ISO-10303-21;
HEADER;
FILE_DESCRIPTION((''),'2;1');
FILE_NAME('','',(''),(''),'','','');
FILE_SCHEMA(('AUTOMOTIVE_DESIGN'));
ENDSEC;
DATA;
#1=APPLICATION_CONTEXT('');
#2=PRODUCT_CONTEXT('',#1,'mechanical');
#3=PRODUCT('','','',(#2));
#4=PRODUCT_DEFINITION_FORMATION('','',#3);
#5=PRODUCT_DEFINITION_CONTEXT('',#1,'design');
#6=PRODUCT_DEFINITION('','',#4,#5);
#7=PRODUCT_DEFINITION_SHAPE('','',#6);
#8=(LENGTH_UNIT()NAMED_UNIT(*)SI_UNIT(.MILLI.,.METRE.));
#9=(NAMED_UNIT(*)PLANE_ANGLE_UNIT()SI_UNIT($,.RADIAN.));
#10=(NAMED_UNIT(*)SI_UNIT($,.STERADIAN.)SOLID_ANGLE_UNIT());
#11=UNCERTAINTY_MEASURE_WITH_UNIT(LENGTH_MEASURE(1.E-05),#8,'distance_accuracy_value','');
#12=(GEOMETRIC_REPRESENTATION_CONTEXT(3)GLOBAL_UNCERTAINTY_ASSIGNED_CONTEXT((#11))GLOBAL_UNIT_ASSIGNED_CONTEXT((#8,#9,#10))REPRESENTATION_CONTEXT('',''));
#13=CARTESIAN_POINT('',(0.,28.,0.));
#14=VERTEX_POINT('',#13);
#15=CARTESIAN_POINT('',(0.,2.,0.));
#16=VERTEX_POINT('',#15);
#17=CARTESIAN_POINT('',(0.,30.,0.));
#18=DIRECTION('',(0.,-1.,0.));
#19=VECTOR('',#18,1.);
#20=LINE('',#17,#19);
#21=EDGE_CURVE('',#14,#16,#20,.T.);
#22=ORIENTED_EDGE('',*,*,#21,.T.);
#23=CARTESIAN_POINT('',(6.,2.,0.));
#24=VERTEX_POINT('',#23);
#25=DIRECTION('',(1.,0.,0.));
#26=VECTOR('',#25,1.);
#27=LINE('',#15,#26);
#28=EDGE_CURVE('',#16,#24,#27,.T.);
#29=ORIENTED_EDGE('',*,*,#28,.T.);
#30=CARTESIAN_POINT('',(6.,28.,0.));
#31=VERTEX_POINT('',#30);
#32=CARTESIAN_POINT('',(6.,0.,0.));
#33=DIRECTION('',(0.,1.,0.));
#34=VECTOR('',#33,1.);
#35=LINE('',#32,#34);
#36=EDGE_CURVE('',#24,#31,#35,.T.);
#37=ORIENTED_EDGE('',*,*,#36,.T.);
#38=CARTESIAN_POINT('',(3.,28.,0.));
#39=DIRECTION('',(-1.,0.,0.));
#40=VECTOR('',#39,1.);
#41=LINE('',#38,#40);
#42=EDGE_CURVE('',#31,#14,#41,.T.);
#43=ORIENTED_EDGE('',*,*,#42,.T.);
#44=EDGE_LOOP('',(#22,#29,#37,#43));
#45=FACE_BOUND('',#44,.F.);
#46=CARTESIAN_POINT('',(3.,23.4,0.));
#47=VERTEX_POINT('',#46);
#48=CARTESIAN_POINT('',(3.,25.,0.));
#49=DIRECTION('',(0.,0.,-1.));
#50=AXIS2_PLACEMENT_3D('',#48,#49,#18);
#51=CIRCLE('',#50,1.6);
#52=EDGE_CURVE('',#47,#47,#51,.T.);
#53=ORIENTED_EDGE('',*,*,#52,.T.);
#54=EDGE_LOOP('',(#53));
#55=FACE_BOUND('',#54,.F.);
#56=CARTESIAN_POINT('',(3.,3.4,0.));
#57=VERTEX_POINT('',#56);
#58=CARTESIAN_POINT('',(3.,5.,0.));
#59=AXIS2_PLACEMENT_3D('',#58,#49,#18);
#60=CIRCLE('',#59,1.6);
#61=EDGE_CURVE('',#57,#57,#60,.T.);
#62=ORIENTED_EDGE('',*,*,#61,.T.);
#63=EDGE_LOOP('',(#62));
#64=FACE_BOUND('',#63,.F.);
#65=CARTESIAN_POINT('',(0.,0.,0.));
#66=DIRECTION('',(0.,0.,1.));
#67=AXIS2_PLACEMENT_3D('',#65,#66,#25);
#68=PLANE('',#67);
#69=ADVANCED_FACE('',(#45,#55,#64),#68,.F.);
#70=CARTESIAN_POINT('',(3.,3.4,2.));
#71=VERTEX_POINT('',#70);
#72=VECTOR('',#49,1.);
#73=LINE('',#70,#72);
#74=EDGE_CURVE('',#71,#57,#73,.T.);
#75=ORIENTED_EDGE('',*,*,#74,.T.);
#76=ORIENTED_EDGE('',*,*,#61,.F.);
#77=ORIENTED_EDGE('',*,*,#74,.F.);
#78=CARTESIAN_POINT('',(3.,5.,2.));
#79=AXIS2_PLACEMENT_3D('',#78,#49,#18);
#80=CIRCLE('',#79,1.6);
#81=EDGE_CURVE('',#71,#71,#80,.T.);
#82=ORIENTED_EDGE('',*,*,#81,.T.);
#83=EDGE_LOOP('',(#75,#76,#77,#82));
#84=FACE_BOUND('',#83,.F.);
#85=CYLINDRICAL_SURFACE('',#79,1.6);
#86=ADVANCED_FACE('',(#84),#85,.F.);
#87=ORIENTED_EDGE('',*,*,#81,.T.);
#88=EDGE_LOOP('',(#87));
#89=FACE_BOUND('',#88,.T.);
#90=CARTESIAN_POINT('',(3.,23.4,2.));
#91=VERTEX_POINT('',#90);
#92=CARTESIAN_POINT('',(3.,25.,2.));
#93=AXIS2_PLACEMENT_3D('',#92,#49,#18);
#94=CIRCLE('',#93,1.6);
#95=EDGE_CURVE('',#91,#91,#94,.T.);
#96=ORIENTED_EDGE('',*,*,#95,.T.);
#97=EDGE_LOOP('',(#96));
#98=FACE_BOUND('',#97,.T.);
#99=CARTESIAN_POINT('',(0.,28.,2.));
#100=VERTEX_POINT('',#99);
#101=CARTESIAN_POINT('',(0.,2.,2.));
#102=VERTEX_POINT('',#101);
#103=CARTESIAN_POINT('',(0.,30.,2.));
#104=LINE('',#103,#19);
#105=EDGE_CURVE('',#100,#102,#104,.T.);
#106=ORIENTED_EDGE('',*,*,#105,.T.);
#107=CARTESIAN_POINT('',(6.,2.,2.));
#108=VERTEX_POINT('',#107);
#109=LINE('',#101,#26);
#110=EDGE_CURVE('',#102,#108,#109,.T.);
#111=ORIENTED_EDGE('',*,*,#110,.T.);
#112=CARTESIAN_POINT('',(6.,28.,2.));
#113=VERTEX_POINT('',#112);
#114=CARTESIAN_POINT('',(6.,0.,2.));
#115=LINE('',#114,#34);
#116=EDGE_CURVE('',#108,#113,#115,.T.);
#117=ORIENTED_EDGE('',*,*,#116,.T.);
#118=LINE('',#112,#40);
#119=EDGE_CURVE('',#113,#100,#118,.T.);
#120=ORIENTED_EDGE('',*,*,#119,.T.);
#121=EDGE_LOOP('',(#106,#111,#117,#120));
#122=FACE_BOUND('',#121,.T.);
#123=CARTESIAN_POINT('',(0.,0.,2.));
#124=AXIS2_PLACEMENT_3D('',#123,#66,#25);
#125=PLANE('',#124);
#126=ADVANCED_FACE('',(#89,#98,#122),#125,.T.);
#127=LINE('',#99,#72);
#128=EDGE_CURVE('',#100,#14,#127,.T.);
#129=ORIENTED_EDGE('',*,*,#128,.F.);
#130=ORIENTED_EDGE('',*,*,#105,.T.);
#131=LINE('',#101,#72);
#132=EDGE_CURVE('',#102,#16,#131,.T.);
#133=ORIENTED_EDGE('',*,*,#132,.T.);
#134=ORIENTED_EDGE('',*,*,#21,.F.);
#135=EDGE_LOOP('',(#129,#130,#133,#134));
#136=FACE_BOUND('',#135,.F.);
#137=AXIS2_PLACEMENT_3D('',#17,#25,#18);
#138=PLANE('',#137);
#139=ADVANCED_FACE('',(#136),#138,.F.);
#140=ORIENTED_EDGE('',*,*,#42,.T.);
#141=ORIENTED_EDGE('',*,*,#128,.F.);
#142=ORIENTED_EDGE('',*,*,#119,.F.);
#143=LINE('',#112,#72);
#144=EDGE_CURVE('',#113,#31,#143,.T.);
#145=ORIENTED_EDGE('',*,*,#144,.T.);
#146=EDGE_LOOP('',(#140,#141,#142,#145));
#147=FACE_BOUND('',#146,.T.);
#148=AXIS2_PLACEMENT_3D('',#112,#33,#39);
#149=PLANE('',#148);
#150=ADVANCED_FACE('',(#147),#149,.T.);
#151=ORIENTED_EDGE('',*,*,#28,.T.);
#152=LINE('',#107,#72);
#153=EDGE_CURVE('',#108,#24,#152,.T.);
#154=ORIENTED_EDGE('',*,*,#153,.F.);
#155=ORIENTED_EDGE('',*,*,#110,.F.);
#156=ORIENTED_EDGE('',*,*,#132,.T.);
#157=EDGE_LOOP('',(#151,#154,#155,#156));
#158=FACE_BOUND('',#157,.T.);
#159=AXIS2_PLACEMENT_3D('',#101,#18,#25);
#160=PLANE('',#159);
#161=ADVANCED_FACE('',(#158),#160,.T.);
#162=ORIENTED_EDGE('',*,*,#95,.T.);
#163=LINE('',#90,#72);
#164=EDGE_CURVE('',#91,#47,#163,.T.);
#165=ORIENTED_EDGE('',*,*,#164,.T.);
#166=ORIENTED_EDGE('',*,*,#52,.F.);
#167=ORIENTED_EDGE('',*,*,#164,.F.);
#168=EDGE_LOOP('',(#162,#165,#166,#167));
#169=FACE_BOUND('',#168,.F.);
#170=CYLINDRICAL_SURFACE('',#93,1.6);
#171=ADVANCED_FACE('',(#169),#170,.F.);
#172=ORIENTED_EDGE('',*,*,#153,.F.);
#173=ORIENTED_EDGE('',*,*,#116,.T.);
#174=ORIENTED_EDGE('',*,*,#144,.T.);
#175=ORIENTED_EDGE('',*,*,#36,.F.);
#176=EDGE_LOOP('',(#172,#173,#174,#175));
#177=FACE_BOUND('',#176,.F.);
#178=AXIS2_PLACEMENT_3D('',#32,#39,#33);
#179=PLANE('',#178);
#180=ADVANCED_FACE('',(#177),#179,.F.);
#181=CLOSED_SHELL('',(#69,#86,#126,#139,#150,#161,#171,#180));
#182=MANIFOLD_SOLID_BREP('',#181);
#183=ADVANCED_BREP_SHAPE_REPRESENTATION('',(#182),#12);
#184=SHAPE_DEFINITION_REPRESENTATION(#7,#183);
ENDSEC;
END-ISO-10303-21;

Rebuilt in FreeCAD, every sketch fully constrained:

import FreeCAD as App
import Part
import Sketcher

V = App.Vector
Q = App.Units.Quantity

doc = App.newDocument("Part")
body = doc.addObject("PartDesign::Body", "Body")

# Sketch on XY plane
sketch1 = body.newObject("Sketcher::SketchObject", "Sketch")
sketch1.AttachmentSupport = (doc.getObject("XY_Plane"), [""])
sketch1.MapMode = "FlatFace"
sketch1.addGeometry([
    Part.LineSegment(V(0, 30, 0), V(0, 0, 0)),
    Part.LineSegment(V(0, 0, 0), V(6, 0, 0)),
    Part.LineSegment(V(6, 0, 0), V(6, 30, 0)),
    Part.LineSegment(V(6, 30, 0), V(0, 30, 0)),
], False)
sketch1.addConstraint([
    Sketcher.Constraint("Coincident", 0, 2, 1, 1),
    Sketcher.Constraint("Coincident", 1, 2, 2, 1),
    Sketcher.Constraint("Coincident", 2, 2, 3, 1),
    Sketcher.Constraint("Coincident", 3, 2, 0, 1),
    Sketcher.Constraint("Vertical", 0),
    Sketcher.Constraint("Horizontal", 1),
    Sketcher.Constraint("Vertical", 2),
    Sketcher.Constraint("Horizontal", 3),
    Sketcher.Constraint("Coincident", 0, 2, -1, 1),
    Sketcher.Constraint("DistanceX", 1, 1, 1, 2, Q("6 mm")),
    Sketcher.Constraint("DistanceY", 0, 2, 0, 1, Q("30 mm")),
])
pad1 = body.newObject("PartDesign::Pad", "Pad")
pad1.Profile = sketch1
pad1.Length = 2

# Sketch on XY plane
sketch2 = body.newObject("Sketcher::SketchObject", "Sketch001")
sketch2.AttachmentSupport = (doc.getObject("XY_Plane"), [""])
sketch2.MapMode = "FlatFace"
sketch2.AttachmentOffset = App.Placement(V(0, 0, 2), App.Rotation())
sketch2.addGeometry([
    Part.Circle(V(3, 25, 0), V(0, 0, 1), 1.6),
    Part.Circle(V(3, 5, 0), V(0, 0, 1), 1.6),
], False)
sketch2.addConstraint([
    Sketcher.Constraint("Equal", 0, 1),
    Sketcher.Constraint("Vertical", 0, 3, 1, 3),
    Sketcher.Constraint("Diameter", 0, Q("3.2 mm")),
    Sketcher.Constraint("DistanceX", -1, 1, 0, 3, Q("3 mm")),
    Sketcher.Constraint("DistanceY", -1, 1, 0, 3, Q("25 mm")),
    Sketcher.Constraint("DistanceY", -1, 1, 1, 3, Q("5 mm")),
])
doc.recompute()
hole = body.newObject("PartDesign::Hole", "Hole")
hole.Profile = sketch2
hole.ThreadType = "None"
hole.Diameter = 3.2
hole.DepthType = "ThroughAll"

# Sketch on XY plane
sketch3 = body.newObject("Sketcher::SketchObject", "Sketch002")
sketch3.AttachmentSupport = (doc.getObject("XY_Plane"), [""])
sketch3.MapMode = "FlatFace"
sketch3.AttachmentOffset = App.Placement(V(0, 0, 2), App.Rotation())
sketch3.addGeometry([
    Part.LineSegment(V(6, 28, 0), V(6, 30, 0)),  # 0
    Part.LineSegment(V(6, 30, 0), V(0, 30, 0)),  # 1
    Part.LineSegment(V(0, 30, 0), V(0, 28, 0)),  # 2
    Part.LineSegment(V(0, 28, 0), V(6, 28, 0)),  # 3
    Part.LineSegment(V(6, 0, 0), V(6, 2, 0)),  # 4
    Part.LineSegment(V(6, 2, 0), V(0, 2, 0)),  # 5
    Part.LineSegment(V(0, 2, 0), V(0, 0, 0)),  # 6
    Part.LineSegment(V(0, 0, 0), V(6, 0, 0)),  # 7
], False)
sketch3.addConstraint([
    Sketcher.Constraint("Coincident", 0, 2, 1, 1),
    Sketcher.Constraint("Coincident", 1, 2, 2, 1),
    Sketcher.Constraint("Coincident", 2, 2, 3, 1),
    Sketcher.Constraint("Coincident", 3, 2, 0, 1),
    Sketcher.Constraint("Coincident", 4, 2, 5, 1),
    Sketcher.Constraint("Coincident", 5, 2, 6, 1),
    Sketcher.Constraint("Coincident", 6, 2, 7, 1),
    Sketcher.Constraint("Coincident", 7, 2, 4, 1),
    Sketcher.Constraint("Vertical", 0),
    Sketcher.Constraint("Horizontal", 1),
    Sketcher.Constraint("Vertical", 2),
    Sketcher.Constraint("Horizontal", 3),
    Sketcher.Constraint("Vertical", 4),
    Sketcher.Constraint("Horizontal", 5),
    Sketcher.Constraint("Vertical", 6),
    Sketcher.Constraint("Horizontal", 7),
    Sketcher.Constraint("Coincident", 6, 2, -1, 1),
    Sketcher.Constraint("PointOnObject", 1, 2, -2),
    Sketcher.Constraint("Vertical", 3, 2, 4, 2),
    Sketcher.Constraint("Equal", 2, 4),
    Sketcher.Constraint("DistanceY", 0, 1, 0, 2, Q("2 mm")),
    Sketcher.Constraint("DistanceX", 1, 2, 1, 1, Q("6 mm")),
    Sketcher.Constraint("DistanceY", -1, 1, 0, 2, Q("30 mm")),
])
pocket1 = body.newObject("PartDesign::Pocket", "Pocket")
pocket1.Profile = sketch3
pocket1.Length = 10

doc.recompute()
